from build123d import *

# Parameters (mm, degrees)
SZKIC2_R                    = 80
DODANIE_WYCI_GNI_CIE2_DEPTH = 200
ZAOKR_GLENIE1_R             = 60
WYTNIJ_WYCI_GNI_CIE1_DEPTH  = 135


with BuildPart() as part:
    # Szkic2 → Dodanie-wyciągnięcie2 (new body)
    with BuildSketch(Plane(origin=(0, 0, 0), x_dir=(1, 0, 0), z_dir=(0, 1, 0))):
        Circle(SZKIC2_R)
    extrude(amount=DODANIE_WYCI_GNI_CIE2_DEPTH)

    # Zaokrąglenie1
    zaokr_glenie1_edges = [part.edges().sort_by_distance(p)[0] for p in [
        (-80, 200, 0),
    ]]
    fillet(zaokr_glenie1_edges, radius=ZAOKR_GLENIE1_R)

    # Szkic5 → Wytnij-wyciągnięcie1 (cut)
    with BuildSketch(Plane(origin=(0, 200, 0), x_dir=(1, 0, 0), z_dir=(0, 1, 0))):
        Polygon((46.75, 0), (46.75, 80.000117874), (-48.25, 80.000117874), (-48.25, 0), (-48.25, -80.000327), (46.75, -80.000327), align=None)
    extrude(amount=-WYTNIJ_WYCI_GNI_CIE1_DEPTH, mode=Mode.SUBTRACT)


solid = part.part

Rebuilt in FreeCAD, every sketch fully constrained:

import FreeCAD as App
import Part
import Sketcher
from FreeCAD import Vector


def edges_at(feature, points):
    """Names of the edges that pass closest to the given points."""
    edges = feature.Shape.Edges
    near = lambda p: min(range(len(edges)), key=lambda i: edges[i].distToShape(Part.Vertex(*p))[0])
    return sorted({f"Edge{near(p) + 1}" for p in points})


def add_polygon(sketch, points):
    """Adds a closed chain of lines whose ends are joined by coincident constraints."""
    first, n = sketch.GeometryCount, len(points)
    for a, b in zip(points, points[1:] + points[:1]):
        sketch.addGeometry(Part.LineSegment(App.Vector(*a, 0), App.Vector(*b, 0)), False)
    for i in range(n):
        sketch.addConstraint(Sketcher.Constraint("Coincident", first + i, 2, first + (i + 1) % n, 1))

doc = App.newDocument("Part")
body = doc.addObject("PartDesign::Body", "Body")

# Sketch on XZ plane
sketch1 = body.newObject("Sketcher::SketchObject", "Sketch")
sketch1.AttachmentSupport = (doc.getObject("XZ_Plane"), [""])
sketch1.MapMode = "FlatFace"
sketch1.addGeometry(Part.Circle(Vector(0, 0, 0), Vector(0, 0, 1), 80), False)
sketch1.addConstraint(Sketcher.Constraint("Coincident", 0, 3, -1, 1))
sketch1.addConstraint(Sketcher.Constraint("Diameter", 0, 160.0))
pad1 = body.newObject("PartDesign::Pad", "Pad")
pad1.Profile = sketch1
pad1.Length = 200
pad1.Reversed = True
doc.recompute()

fillet = body.newObject("PartDesign::Fillet", "Fillet")
fillet.Base = (pad1, edges_at(pad1, [(-80, 200, 0)]))
fillet.Radius = 60

# Sketch on XZ plane
sketch2 = body.newObject("Sketcher::SketchObject", "Sketch001")
sketch2.AttachmentSupport = (doc.getObject("XZ_Plane"), [""])
sketch2.MapMode = "FlatFace"
sketch2.AttachmentOffset = App.Placement(Vector(0, 0, -200), App.Rotation())
add_polygon(sketch2, [(47, -80), (-48, -80), (-48, 80), (47, 80)])  # lines 0-3
sketch2.addConstraint(Sketcher.Constraint("Horizontal", 0))
sketch2.addConstraint(Sketcher.Constraint("Vertical", 1))
sketch2.addConstraint(Sketcher.Constraint("Horizontal", 2))
sketch2.addConstraint(Sketcher.Constraint("Vertical", 3))
sketch2.addConstraint(Sketcher.Constraint("DistanceX", 0, 2, 0, 1, 95.0))
sketch2.addConstraint(Sketcher.Constraint("DistanceX", 0, 2, -1, 1, 48.25))
sketch2.addConstraint(Sketcher.Constraint("DistanceY", 1, 1, 1, 2, 160.000445))
sketch2.addConstraint(Sketcher.Constraint("DistanceY", 0, 2, -1, 1, 80.000118))
pocket1 = body.newObject("PartDesign::Pocket", "Pocket")
pocket1.Profile = sketch2
pocket1.Length = 135
pocket1.Reversed = True

doc.recompute()
